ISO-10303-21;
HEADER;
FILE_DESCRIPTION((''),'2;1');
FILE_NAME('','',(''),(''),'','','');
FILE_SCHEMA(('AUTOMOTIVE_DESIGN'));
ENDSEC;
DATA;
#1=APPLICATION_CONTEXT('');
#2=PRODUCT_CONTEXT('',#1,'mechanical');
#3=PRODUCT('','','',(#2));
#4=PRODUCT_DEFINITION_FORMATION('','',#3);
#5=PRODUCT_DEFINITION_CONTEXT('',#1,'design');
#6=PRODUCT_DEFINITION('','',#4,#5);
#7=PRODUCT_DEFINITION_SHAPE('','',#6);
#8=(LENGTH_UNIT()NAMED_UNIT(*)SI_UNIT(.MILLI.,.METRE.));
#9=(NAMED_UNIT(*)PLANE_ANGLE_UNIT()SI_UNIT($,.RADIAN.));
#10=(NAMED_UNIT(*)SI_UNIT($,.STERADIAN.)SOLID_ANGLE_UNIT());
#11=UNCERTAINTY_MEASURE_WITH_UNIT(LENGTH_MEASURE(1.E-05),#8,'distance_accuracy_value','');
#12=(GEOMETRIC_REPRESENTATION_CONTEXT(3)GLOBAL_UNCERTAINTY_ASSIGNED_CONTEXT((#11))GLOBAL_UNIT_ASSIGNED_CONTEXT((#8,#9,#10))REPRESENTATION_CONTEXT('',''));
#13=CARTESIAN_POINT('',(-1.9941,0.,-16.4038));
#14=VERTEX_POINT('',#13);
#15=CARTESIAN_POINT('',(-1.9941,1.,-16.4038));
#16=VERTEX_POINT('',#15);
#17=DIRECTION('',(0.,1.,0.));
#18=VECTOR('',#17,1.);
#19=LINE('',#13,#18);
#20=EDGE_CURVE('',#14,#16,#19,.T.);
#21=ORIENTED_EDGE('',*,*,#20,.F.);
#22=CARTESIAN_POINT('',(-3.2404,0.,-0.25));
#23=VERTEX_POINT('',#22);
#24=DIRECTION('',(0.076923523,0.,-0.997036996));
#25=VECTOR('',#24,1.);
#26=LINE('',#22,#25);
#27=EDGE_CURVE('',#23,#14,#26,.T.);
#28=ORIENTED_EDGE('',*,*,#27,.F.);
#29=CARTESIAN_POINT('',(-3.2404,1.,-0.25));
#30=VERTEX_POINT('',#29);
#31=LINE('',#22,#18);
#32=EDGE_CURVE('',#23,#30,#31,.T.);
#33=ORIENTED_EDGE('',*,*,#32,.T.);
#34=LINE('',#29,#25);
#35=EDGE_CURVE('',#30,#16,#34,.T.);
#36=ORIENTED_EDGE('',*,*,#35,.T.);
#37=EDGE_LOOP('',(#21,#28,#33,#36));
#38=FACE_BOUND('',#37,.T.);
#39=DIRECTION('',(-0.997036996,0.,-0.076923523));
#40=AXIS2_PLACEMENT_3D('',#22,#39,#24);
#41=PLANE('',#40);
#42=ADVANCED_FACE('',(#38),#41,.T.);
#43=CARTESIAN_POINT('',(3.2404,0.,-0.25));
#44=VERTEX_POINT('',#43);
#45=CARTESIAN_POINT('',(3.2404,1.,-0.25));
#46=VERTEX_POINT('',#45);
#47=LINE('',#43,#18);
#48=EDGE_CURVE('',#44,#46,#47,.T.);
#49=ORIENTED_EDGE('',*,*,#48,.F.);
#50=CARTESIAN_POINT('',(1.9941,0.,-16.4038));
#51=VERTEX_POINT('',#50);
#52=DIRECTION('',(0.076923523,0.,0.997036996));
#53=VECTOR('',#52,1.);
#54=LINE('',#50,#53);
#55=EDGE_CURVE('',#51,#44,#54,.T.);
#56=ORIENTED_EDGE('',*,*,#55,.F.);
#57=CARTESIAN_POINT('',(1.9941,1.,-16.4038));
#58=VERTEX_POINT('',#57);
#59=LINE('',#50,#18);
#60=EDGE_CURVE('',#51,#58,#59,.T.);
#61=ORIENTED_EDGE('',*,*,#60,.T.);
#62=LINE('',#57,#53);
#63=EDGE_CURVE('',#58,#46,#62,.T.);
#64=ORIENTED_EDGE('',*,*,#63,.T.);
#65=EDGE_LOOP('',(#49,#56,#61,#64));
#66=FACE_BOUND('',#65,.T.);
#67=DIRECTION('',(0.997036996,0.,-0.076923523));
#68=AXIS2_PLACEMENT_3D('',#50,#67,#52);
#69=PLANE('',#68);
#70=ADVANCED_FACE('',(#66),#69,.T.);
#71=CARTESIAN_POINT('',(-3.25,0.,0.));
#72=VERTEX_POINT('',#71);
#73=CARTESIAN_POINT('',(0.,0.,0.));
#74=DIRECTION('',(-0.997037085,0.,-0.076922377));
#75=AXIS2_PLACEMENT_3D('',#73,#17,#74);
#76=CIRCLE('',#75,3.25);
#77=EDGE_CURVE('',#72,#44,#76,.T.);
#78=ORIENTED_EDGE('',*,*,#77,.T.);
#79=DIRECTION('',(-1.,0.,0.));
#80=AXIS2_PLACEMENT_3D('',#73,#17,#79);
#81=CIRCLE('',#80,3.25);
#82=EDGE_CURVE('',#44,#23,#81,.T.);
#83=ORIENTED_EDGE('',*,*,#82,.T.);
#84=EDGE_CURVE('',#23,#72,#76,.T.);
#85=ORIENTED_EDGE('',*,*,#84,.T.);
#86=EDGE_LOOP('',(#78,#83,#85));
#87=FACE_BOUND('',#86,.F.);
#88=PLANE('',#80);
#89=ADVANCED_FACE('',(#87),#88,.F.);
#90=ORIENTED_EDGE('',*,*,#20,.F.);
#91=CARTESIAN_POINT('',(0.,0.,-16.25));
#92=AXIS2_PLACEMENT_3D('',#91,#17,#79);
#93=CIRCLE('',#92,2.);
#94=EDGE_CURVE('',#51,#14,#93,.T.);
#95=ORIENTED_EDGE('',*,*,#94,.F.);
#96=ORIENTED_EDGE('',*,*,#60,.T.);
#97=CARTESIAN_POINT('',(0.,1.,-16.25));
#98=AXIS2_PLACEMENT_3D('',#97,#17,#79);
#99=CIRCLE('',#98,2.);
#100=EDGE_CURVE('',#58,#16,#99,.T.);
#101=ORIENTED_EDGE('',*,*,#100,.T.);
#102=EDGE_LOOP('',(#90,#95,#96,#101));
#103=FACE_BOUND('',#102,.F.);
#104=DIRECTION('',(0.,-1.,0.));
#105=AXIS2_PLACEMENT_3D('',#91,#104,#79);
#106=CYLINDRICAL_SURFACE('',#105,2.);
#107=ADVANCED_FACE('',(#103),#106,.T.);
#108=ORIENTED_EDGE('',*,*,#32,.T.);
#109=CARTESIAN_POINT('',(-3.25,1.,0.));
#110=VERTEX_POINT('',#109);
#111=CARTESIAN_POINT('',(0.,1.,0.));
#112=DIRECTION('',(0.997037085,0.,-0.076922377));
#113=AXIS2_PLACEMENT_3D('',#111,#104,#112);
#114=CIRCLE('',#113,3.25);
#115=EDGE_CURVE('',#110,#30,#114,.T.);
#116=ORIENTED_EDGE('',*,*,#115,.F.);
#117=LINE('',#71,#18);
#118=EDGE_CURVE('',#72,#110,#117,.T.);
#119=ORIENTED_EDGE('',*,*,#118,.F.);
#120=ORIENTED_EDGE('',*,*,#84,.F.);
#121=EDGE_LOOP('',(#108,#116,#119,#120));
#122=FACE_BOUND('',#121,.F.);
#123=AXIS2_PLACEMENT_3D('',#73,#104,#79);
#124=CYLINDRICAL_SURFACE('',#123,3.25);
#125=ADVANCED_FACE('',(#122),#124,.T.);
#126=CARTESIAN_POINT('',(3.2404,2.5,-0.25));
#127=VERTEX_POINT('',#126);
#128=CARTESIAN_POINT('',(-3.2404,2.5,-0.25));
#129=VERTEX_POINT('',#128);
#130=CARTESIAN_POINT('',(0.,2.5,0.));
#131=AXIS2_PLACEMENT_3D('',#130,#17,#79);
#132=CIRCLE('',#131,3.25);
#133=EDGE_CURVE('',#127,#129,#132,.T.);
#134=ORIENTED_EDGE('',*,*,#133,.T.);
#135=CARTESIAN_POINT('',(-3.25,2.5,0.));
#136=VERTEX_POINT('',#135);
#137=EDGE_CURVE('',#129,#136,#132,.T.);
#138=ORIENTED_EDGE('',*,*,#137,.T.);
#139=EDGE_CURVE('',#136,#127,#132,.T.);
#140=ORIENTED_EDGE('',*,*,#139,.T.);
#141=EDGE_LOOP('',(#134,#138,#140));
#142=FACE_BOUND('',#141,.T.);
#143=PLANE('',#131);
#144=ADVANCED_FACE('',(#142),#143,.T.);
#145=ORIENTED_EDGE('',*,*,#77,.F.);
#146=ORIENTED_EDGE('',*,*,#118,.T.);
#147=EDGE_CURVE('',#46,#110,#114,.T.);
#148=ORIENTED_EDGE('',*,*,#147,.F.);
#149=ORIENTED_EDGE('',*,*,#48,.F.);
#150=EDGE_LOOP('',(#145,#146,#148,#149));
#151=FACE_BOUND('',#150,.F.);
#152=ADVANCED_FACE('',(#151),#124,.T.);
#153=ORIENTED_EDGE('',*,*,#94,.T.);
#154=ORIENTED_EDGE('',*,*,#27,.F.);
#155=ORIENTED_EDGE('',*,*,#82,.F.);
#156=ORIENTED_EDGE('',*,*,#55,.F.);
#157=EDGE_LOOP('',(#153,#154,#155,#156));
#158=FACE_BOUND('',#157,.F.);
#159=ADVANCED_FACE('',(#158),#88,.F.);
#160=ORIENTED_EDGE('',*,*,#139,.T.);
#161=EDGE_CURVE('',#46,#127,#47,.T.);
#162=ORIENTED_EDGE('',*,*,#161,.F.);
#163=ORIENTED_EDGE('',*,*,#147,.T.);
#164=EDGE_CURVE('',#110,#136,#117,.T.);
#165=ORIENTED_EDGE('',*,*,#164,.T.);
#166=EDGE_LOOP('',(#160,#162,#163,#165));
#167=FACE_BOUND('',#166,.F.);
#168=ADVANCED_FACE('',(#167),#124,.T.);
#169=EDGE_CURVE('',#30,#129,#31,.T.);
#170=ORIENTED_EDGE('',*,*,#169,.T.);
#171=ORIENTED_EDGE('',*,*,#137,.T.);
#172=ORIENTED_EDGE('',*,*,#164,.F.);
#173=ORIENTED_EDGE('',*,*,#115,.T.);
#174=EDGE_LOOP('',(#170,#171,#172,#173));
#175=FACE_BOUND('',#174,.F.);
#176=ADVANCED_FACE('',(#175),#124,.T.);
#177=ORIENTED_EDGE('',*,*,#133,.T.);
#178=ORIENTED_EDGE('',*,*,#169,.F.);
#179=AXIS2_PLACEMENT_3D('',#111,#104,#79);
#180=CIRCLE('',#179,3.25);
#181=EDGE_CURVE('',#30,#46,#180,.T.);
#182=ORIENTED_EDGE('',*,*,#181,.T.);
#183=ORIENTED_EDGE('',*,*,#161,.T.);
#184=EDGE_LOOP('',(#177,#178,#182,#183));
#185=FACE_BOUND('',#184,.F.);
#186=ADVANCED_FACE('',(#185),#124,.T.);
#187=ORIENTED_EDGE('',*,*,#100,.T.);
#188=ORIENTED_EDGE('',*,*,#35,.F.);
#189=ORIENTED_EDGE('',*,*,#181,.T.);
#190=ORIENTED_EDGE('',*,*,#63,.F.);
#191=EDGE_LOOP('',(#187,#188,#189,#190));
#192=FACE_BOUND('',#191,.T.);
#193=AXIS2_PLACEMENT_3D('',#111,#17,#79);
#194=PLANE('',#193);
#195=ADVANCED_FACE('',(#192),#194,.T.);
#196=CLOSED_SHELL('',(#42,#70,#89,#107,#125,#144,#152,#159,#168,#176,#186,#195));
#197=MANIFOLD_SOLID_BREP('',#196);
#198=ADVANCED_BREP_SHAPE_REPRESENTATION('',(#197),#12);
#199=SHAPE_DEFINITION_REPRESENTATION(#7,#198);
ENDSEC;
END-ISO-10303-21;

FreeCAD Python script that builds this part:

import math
import FreeCAD as App
import Part
import Sketcher

V = App.Vector
Q = App.Units.Quantity

doc = App.newDocument("Part")
body = doc.addObject("PartDesign::Body", "Body")

# Sketch on XZ plane
sketch1 = body.newObject("Sketcher::SketchObject", "Sketch")
sketch1.AttachmentSupport = (doc.getObject("XZ_Plane"), [""])
sketch1.MapMode = "FlatFace"
sketch1.addGeometry([
    Part.ArcOfCircle(Part.Circle(V(0, 0, 0), V(0, 0, 1), 3.2), math.radians(-4), math.radians(184)),
    Part.LineSegment(V(3.2, -0.2, 0), V(2, -16.4, 0)),
    Part.ArcOfCircle(Part.Circle(V(0, -16.2, 0), V(0, 0, 1), 2), math.radians(-176), math.radians(-4)),
    Part.LineSegment(V(-2, -16.4, 0), V(-3.2, -0.2, 0)),
], False)
sketch1.addConstraint([
    Sketcher.Constraint("Tangent", 0, 1, 1, 1),
    Sketcher.Constraint("Tangent", 1, 2, 2, 2),
    Sketcher.Constraint("Tangent", 2, 1, 3, 1),
    Sketcher.Constraint("Tangent", 3, 2, 0, 2),
    Sketcher.Constraint("Coincident", 0, 3, -1, 1),
    Sketcher.Constraint("PointOnObject", 2, 3, -2),
    Sketcher.Constraint("Radius", 2, Q("2 mm")),
    Sketcher.Constraint("Radius", 0, Q("3.25 mm")),
    Sketcher.Constraint("DistanceY", 2, 3, 0, 1, Q("16 mm")),
])
pad1 = body.newObject("PartDesign::Pad", "Pad")
pad1.Profile = sketch1
pad1.Length = 1
pad1.Reversed = True

# Sketch on XZ plane
sketch2 = body.newObject("Sketcher::SketchObject", "Sketch001")
sketch2.AttachmentSupport = (doc.getObject("XZ_Plane"), [""])
sketch2.MapMode = "FlatFace"
sketch2.addGeometry(Part.Circle(V(0, 0, 0), V(0, 0, 1), 3.2), False)
sketch2.addConstraint([
    Sketcher.Constraint("Coincident", 0, 3, -1, 1),
    Sketcher.Constraint("Diameter", 0, Q("6.5 mm")),
])
pad2 = body.newObject("PartDesign::Pad", "Pad001")
pad2.Profile = sketch2
pad2.Length = 2.5
pad2.Reversed = True

doc.recompute()
